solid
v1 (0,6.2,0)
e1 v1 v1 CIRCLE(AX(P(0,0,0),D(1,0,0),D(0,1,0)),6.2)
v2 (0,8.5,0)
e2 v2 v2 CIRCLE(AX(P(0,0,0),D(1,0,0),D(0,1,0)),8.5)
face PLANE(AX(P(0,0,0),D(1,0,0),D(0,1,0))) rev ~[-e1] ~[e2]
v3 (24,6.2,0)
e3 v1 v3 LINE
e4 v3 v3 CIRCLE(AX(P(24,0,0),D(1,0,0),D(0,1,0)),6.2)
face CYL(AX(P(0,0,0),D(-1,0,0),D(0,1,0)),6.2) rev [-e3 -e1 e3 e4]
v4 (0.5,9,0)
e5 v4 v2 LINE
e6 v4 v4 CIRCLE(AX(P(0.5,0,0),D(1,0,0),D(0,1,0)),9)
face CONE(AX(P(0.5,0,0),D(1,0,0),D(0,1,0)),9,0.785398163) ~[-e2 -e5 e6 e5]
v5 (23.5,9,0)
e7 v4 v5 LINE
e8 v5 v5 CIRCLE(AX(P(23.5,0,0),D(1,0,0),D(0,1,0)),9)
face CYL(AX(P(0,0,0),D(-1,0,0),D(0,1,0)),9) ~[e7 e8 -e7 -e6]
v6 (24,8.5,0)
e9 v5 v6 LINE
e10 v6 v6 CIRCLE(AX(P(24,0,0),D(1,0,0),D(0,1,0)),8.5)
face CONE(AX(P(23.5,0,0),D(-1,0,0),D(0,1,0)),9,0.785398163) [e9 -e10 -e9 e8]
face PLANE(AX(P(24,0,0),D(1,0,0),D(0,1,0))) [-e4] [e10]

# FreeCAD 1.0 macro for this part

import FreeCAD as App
import Part
import Sketcher
from FreeCAD import Vector


def edges_at(feature, points):
    """Names of the edges that pass closest to the given points."""
    edges = feature.Shape.Edges
    near = lambda p: min(range(len(edges)), key=lambda i: edges[i].distToShape(Part.Vertex(*p))[0])
    return sorted({f"Edge{near(p) + 1}" for p in points})

doc = App.newDocument("Part")
params = doc.addObject("Spreadsheet::Sheet", "Params")
for row, (alias, value) in enumerate([
    ("sketch1_diameter", "18 mm"),
    ("sketch1_diameter2", "12.4 mm"),
    ("pad1_length", "24 mm"),
    ("chamfer_size", "0.5 mm"),
], start=1):
    params.set(f"A{row}", alias)
    params.set(f"B{row}", "=" + value)
    params.setAlias(f"B{row}", alias)

body = doc.addObject("PartDesign::Body", "Body")

sketch1 = body.newObject("Sketcher::SketchObject", "Sketch")
sketch1.AttachmentSupport = (doc.getObject("YZ_Plane"), [""])
sketch1.MapMode = "FlatFace"
sketch1.addGeometry([
    Part.Circle(Vector(0, 0, 0), Vector(0, 0, 1), 9),
    Part.Circle(Vector(0, 0, 0), Vector(0, 0, 1), 6),
], False)
sketch1.addConstraint([
    Sketcher.Constraint("Coincident", 0, 3, -1, 1),
    Sketcher.Constraint("Coincident", 1, 3, -1, 1),
    Sketcher.Constraint("Diameter", 0, 18.0),
    Sketcher.Constraint("Diameter", 1, 12.4),
])
sketch1.setExpression("Constraints[2]", "Params.sketch1_diameter")
sketch1.setExpression("Constraints[3]", "Params.sketch1_diameter2")
pad1 = body.newObject("PartDesign::Pad", "Pad")
pad1.Profile = sketch1
pad1.setExpression("Length", "Params.pad1_length")
doc.recompute()

chamfer = body.newObject("PartDesign::Chamfer", "Chamfer")
chamfer.Base = (pad1, edges_at(pad1, [(0, -9, 0), (24, -9, 0)]))
chamfer.setExpression("Size", "Params.chamfer_size")

doc.recompute()
